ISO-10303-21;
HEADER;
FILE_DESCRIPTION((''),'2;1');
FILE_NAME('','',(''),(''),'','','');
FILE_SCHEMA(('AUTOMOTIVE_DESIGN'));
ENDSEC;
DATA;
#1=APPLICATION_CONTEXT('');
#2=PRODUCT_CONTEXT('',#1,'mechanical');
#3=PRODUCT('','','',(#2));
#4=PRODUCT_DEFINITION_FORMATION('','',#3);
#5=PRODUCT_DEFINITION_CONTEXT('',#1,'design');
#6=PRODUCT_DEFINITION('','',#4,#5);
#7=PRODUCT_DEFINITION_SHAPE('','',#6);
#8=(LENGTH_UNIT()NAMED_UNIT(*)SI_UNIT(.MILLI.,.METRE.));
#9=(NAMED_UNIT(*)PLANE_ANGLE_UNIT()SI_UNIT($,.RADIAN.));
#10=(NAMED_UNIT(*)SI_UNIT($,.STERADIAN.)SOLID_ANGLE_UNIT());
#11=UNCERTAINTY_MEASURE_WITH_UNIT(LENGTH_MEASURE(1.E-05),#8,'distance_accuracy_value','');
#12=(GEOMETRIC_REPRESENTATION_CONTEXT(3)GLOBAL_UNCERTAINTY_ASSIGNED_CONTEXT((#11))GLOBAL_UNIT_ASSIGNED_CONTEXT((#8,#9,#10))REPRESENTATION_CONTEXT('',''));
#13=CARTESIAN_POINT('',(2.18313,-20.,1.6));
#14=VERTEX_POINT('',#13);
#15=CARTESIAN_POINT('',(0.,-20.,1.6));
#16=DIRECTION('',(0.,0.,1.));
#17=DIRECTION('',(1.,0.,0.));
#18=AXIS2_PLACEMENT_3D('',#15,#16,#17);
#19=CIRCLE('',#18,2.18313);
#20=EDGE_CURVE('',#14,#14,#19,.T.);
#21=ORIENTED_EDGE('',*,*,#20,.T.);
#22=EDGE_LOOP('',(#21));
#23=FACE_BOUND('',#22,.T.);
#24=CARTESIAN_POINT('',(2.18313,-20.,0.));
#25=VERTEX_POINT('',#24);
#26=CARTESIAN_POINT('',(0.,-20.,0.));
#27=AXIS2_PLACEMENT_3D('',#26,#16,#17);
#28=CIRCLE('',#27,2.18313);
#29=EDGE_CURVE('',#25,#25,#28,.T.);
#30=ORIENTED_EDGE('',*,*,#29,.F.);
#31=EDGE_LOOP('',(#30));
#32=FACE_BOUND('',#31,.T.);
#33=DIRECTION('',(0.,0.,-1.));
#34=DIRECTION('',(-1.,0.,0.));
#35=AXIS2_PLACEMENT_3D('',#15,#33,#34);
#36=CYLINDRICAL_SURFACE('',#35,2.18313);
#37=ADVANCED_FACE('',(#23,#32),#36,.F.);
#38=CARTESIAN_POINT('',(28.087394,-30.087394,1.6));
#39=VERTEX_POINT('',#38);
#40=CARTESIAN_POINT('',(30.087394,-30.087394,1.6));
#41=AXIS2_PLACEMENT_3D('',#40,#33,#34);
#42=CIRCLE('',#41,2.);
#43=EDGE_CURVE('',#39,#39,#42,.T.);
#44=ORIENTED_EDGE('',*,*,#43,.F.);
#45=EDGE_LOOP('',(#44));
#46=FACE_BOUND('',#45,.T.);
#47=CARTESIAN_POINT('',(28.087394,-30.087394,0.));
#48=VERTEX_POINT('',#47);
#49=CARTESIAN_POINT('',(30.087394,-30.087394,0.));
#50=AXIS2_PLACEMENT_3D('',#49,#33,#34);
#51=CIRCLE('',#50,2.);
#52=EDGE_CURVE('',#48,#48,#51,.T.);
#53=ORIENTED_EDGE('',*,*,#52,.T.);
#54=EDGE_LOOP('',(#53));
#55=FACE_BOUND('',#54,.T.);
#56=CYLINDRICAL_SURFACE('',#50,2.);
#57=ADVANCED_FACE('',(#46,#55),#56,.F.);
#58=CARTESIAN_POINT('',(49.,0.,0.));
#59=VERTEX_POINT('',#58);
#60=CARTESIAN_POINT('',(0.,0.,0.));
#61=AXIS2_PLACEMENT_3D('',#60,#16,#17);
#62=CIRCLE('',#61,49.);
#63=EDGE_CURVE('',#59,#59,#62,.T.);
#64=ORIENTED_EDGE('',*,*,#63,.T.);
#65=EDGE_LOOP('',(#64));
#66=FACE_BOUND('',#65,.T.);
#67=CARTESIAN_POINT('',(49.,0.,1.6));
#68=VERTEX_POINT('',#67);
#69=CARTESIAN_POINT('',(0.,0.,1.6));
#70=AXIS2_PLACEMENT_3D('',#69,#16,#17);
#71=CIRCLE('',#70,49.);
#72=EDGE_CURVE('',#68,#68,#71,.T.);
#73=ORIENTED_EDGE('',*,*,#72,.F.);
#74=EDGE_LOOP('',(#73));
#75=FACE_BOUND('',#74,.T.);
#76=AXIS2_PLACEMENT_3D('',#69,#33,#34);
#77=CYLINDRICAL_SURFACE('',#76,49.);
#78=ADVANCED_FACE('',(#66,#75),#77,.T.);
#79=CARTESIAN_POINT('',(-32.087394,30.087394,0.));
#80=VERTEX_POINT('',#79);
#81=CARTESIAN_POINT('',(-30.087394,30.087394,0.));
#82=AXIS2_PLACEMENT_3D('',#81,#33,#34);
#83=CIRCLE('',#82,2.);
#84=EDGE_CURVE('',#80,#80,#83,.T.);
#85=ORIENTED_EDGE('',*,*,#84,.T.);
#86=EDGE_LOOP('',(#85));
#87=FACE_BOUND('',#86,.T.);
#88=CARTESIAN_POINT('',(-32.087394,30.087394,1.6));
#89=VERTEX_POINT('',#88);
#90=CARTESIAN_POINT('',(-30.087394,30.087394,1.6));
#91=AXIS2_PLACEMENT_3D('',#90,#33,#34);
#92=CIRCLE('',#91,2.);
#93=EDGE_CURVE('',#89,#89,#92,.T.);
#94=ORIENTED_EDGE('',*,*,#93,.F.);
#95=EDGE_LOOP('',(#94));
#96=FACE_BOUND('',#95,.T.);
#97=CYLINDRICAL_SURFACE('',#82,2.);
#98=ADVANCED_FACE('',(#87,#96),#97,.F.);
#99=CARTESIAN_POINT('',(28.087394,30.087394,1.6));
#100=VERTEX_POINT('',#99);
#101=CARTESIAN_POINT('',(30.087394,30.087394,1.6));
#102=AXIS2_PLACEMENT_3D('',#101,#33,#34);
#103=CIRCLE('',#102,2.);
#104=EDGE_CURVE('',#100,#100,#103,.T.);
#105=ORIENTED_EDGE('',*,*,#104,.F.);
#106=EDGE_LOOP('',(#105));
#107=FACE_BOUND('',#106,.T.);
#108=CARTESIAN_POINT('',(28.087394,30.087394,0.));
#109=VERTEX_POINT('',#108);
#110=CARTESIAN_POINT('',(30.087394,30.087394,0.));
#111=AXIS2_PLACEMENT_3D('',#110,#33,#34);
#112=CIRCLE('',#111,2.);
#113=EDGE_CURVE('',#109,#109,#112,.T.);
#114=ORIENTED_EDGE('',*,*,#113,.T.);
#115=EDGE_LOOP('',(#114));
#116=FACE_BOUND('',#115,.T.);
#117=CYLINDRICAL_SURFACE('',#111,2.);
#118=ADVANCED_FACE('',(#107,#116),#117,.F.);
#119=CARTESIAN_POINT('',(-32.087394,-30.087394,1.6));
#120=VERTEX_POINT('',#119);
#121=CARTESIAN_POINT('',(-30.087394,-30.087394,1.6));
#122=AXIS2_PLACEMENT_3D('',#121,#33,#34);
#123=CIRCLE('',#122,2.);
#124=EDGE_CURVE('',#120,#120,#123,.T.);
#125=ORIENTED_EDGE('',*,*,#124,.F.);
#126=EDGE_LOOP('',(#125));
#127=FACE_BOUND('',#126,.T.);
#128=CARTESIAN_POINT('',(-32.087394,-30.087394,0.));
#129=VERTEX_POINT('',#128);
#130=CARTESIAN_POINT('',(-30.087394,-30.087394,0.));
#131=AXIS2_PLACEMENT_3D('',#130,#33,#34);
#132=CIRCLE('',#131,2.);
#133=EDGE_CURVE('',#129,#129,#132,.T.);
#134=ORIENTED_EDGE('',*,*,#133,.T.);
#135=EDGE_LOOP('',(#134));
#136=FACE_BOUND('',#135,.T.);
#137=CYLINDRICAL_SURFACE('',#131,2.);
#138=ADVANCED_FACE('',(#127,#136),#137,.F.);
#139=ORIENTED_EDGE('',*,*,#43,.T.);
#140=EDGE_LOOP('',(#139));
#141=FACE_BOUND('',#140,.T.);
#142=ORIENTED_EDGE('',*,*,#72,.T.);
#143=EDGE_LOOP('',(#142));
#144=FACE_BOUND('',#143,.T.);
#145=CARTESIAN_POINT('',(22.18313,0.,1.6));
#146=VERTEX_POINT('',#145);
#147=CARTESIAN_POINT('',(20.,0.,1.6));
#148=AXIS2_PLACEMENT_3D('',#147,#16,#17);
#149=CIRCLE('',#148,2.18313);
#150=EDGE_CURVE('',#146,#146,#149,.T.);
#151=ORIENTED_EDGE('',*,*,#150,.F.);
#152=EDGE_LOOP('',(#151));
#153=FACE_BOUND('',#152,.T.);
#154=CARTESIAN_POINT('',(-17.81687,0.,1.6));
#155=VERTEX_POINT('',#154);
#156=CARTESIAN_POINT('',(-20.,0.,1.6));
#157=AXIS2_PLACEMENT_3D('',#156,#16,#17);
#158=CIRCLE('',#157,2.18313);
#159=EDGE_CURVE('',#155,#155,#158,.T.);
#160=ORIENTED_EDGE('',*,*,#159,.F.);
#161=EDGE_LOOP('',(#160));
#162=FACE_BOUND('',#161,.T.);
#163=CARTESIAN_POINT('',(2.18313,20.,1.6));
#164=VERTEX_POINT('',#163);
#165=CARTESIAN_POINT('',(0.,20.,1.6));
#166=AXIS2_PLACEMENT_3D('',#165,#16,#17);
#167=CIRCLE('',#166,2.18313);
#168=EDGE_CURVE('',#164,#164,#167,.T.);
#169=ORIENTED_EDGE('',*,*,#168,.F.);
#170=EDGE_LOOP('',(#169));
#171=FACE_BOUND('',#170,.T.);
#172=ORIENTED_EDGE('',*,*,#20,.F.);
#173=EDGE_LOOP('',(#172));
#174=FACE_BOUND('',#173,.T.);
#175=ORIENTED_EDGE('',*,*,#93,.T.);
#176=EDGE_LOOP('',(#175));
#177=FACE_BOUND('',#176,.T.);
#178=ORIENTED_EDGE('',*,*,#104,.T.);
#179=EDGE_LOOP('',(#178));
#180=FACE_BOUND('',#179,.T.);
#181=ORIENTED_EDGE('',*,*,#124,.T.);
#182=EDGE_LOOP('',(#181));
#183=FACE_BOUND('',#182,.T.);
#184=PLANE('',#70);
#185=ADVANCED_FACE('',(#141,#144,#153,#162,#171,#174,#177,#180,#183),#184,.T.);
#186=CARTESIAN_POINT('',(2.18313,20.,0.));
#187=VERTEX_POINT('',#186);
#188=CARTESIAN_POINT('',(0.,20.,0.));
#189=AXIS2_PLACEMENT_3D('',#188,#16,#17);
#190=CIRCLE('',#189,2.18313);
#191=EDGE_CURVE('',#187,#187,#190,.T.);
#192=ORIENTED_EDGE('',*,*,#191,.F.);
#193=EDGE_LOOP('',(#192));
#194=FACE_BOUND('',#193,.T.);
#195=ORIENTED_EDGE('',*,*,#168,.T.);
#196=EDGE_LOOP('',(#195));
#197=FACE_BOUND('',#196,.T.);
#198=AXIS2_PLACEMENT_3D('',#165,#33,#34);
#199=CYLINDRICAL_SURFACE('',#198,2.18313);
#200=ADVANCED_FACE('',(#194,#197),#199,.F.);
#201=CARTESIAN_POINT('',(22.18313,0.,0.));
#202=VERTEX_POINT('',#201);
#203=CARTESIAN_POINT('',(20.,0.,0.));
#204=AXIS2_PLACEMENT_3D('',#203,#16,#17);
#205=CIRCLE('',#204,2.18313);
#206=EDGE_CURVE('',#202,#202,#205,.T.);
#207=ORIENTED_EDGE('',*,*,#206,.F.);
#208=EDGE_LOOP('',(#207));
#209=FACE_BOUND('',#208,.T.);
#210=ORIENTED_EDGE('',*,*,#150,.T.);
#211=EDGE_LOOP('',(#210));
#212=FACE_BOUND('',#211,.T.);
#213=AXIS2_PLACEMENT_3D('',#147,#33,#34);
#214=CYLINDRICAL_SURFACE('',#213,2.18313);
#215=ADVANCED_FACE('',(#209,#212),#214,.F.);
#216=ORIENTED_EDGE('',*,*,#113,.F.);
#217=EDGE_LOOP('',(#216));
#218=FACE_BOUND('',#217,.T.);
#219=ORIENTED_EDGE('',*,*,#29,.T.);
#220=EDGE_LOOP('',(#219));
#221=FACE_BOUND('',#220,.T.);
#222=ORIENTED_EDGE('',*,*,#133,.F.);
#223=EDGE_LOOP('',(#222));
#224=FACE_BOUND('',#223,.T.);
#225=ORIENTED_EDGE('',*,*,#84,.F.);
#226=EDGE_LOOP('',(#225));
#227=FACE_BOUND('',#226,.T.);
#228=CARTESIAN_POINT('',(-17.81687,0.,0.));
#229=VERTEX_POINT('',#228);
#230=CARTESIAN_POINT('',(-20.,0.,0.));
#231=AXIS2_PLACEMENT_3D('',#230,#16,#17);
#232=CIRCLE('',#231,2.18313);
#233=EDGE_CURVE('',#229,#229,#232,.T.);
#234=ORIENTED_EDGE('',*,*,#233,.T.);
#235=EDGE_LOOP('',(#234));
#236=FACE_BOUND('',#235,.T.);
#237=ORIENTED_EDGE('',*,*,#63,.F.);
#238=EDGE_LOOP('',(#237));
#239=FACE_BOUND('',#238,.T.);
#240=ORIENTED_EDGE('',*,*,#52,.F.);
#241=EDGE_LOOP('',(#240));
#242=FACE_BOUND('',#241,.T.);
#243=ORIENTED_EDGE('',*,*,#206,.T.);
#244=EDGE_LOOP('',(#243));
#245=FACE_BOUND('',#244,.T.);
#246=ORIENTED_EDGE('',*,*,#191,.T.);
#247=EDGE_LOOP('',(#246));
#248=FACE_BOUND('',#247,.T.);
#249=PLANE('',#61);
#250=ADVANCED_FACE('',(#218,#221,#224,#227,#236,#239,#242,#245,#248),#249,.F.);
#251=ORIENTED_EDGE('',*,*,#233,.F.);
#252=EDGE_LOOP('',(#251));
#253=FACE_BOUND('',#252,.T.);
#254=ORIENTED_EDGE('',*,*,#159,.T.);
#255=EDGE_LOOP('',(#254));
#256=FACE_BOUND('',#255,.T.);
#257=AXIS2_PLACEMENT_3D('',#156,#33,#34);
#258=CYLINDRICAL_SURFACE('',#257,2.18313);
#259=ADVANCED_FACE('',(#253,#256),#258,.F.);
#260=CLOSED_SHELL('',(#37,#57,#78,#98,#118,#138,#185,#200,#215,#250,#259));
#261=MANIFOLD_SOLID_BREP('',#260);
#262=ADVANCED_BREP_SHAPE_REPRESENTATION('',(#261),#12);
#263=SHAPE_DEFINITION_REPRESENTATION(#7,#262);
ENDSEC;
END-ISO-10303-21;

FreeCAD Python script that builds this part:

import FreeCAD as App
import Part
import Sketcher
from FreeCAD import Vector

doc = App.newDocument("Part")
body = doc.addObject("PartDesign::Body", "Body")

# Sketch on XY plane
sketch1 = doc.addObject("Sketcher::SketchObject", "Sketch")
body.addObject(sketch1)
sketch1.AttachmentSupport = (doc.XY_Plane, [""])
sketch1.MapMode = "FlatFace"
sketch1.addGeometry(Part.Circle(Vector(0, 0, 0), Vector(0, 0, 1), 49), False)
sketch1.addConstraint([
    Sketcher.Constraint("Coincident", 0, 3, -1, 1),
    Sketcher.Constraint("Diameter", 0, 98.0),
])
pad1 = doc.addObject("PartDesign::Pad", "Pad")
body.addObject(pad1)
pad1.Profile = sketch1
pad1.Length = 1.6

# Sketch on XY plane
sketch2 = doc.addObject("Sketcher::SketchObject", "Sketch001")
body.addObject(sketch2)
sketch2.AttachmentSupport = (doc.XY_Plane, [""])
sketch2.MapMode = "FlatFace"
sketch2.addGeometry([
    Part.Circle(Vector(-30.087394, 30.087394, 0), Vector(0, 0, 1), 2),
    Part.Circle(Vector(30.087394, 30.087394, 0), Vector(0, 0, 1), 2),
    Part.Circle(Vector(30.087394, -30.087394, 0), Vector(0, 0, 1), 2),
    Part.Circle(Vector(-30.087394, -30.087394, 0), Vector(0, 0, 1), 2),
], False)
sketch2.addConstraint([
    Sketcher.Constraint("Equal", 0, 1),
    Sketcher.Constraint("Equal", 1, 2),
    Sketcher.Constraint("Equal", 2, 3),
    Sketcher.Constraint("Symmetric", 0, 3, 2, 3, -1, 1),
    Sketcher.Constraint("Symmetric", 1, 3, 3, 3, -1, 1),
    Sketcher.Constraint("Symmetric", 0, 3, 1, 3, -2),
    Sketcher.Constraint("Diameter", 0, 4.0),
    Sketcher.Constraint("DistanceX", 0, 3, -1, 1, 30.087394),
    Sketcher.Constraint("DistanceY", -1, 1, 0, 3, 30.087394),
])
doc.recompute()
hole = doc.addObject("PartDesign::Hole", "Hole")
body.addObject(hole)
hole.Profile = sketch2
hole.ThreadType = "None"
hole.Diameter = 4
hole.DepthType = "ThroughAll"
hole.Reversed = True

# Sketch on XY plane
sketch3 = doc.addObject("Sketcher::SketchObject", "Sketch002")
body.addObject(sketch3)
sketch3.AttachmentSupport = (doc.XY_Plane, [""])
sketch3.MapMode = "FlatFace"
sketch3.addGeometry([
    Part.Circle(Vector(0, 20, 0), Vector(0, 0, 1), 2.18313),
    Part.Circle(Vector(20, 0, 0), Vector(0, 0, 1), 2.18313),
    Part.Circle(Vector(0, -20, 0), Vector(0, 0, 1), 2.18313),
    Part.Circle(Vector(-20, 0, 0), Vector(0, 0, 1), 2.18313),
], False)
sketch3.addConstraint([
    Sketcher.Constraint("Equal", 0, 1),
    Sketcher.Constraint("Equal", 1, 2),
    Sketcher.Constraint("Equal", 2, 3),
    Sketcher.Constraint("Symmetric", 0, 3, 2, 3, -1, 1),
    Sketcher.Constraint("Symmetric", 1, 3, 3, 3, -1, 1),
    Sketcher.Constraint("PointOnObject", 0, 3, -2),
    Sketcher.Constraint("PointOnObject", 1, 3, -1),
    Sketcher.Constraint("DistanceY", -1, 1, 0, 3, 20.0),
    Sketcher.Constraint("DistanceX", -1, 1, 1, 3, 20.0),
    Sketcher.Constraint("Diameter", 0, 4.366259),
])
pocket1 = doc.addObject("PartDesign::Pocket", "Pocket")
body.addObject(pocket1)
pocket1.Profile = sketch3
pocket1.Type = "ThroughAll"
pocket1.Reversed = True

doc.recompute()
